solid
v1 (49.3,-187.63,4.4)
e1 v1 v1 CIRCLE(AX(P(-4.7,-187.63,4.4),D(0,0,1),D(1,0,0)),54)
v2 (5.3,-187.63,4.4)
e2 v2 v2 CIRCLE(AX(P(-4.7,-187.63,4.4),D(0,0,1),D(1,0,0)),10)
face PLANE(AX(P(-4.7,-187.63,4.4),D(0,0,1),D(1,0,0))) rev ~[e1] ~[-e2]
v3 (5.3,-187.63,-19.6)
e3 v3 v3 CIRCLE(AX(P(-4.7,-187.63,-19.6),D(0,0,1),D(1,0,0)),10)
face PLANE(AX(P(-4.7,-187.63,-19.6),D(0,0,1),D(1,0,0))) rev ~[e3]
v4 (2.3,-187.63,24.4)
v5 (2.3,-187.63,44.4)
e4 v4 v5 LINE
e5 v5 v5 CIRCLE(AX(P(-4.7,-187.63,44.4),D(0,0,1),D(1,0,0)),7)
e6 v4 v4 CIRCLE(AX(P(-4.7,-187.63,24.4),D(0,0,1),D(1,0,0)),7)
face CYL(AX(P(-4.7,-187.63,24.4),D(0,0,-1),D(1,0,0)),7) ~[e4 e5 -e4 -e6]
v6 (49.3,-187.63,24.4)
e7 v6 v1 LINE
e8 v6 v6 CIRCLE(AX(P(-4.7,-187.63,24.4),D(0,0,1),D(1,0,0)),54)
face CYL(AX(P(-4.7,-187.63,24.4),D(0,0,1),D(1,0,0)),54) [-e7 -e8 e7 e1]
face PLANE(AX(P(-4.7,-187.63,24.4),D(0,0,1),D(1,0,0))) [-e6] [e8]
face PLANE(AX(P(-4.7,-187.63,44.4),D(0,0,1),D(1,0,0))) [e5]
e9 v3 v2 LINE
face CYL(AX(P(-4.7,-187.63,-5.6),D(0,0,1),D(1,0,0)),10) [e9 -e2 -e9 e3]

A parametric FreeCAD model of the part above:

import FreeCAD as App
import Part
import Sketcher
from FreeCAD import Vector
Q = App.Units.Quantity

doc = App.newDocument("Part")
body = doc.addObject("PartDesign::Body", "Body")

sketch1 = body.newObject("Sketcher::SketchObject", "Sketch")
sketch1.AttachmentSupport = (doc.getObject("XY_Plane"), [""])
sketch1.MapMode = "FlatFace"
sketch1.AttachmentOffset = App.Placement(Vector(0, 0, 98.4), App.Rotation())
sketch1.addGeometry(Part.Circle(Vector(-58.7, 20.37, 0), Vector(0, 0, 1), 54), False)
sketch1.addConstraint(Sketcher.Constraint("Diameter", 0, Q("108 mm")))
sketch1.addConstraint(Sketcher.Constraint("DistanceX", 0, 3, -1, 1, Q("58.7 mm")))
sketch1.addConstraint(Sketcher.Constraint("DistanceY", -1, 1, 0, 3, Q("20.37 mm")))
pad1 = body.newObject("PartDesign::Pad", "Pad")
pad1.Profile = sketch1
pad1.Length = 20
pad1.Reversed = True
body2 = doc.addObject("PartDesign::Body", "Body001")

sketch2 = body2.newObject("Sketcher::SketchObject", "Sketch001")
sketch2.AttachmentSupport = (doc.getObject("XY_Plane001"), [""])
sketch2.MapMode = "FlatFace"
sketch2.AttachmentOffset = App.Placement(Vector(0, 0, 68.4), App.Rotation())
sketch2.addGeometry(Part.Circle(Vector(-58.7, 20.37, 0), Vector(0, 0, 1), 10), False)
sketch2.addConstraint(Sketcher.Constraint("Diameter", 0, Q("20 mm")))
sketch2.addConstraint(Sketcher.Constraint("DistanceX", 0, 3, -1, 1, Q("58.7 mm")))
sketch2.addConstraint(Sketcher.Constraint("DistanceY", -1, 1, 0, 3, Q("20.37 mm")))
pad2 = body2.newObject("PartDesign::Pad", "Pad001")
pad2.Profile = sketch2
pad2.Type = "TwoLengths"
pad2.Length = 30
pad2.Length2 = 14
body3 = doc.addObject("PartDesign::Body", "Body002")

sketch3 = body3.newObject("Sketcher::SketchObject", "Sketch002")
sketch3.AttachmentSupport = (doc.getObject("XY_Plane002"), [""])
sketch3.MapMode = "FlatFace"
sketch3.AttachmentOffset = App.Placement(Vector(0, 0, 98.4), App.Rotation())
sketch3.addGeometry(Part.Circle(Vector(-58.7, 20.37, 0), Vector(0, 0, 1), 7), False)
sketch3.addConstraint(Sketcher.Constraint("Diameter", 0, Q("14 mm")))
sketch3.addConstraint(Sketcher.Constraint("DistanceX", 0, 3, -1, 1, Q("58.7 mm")))
sketch3.addConstraint(Sketcher.Constraint("DistanceY", -1, 1, 0, 3, Q("20.37 mm")))
pad3 = body3.newObject("PartDesign::Pad", "Pad002")
pad3.Profile = sketch3
pad3.Length = 20
doc.recompute()

boolean = body3.newObject("PartDesign::Boolean", "Boolean")
boolean.Type = "Fuse"
boolean.addObjects([body])
doc.recompute()

boolean2 = body3.newObject("PartDesign::Boolean", "Boolean001")
boolean2.Type = "Fuse"
boolean2.addObjects([body2])
body4 = doc.addObject("PartDesign::Body", "Body003")
doc.recompute()

body3.Placement = App.Placement(Vector(54, -208, -74), App.Rotation(Vector(0, 0, 1), 0))
boolean3 = body4.newObject("PartDesign::Boolean", "Boolean002")
boolean3.Type = "Fuse"
boolean3.addObjects([body3])

doc.recompute()
